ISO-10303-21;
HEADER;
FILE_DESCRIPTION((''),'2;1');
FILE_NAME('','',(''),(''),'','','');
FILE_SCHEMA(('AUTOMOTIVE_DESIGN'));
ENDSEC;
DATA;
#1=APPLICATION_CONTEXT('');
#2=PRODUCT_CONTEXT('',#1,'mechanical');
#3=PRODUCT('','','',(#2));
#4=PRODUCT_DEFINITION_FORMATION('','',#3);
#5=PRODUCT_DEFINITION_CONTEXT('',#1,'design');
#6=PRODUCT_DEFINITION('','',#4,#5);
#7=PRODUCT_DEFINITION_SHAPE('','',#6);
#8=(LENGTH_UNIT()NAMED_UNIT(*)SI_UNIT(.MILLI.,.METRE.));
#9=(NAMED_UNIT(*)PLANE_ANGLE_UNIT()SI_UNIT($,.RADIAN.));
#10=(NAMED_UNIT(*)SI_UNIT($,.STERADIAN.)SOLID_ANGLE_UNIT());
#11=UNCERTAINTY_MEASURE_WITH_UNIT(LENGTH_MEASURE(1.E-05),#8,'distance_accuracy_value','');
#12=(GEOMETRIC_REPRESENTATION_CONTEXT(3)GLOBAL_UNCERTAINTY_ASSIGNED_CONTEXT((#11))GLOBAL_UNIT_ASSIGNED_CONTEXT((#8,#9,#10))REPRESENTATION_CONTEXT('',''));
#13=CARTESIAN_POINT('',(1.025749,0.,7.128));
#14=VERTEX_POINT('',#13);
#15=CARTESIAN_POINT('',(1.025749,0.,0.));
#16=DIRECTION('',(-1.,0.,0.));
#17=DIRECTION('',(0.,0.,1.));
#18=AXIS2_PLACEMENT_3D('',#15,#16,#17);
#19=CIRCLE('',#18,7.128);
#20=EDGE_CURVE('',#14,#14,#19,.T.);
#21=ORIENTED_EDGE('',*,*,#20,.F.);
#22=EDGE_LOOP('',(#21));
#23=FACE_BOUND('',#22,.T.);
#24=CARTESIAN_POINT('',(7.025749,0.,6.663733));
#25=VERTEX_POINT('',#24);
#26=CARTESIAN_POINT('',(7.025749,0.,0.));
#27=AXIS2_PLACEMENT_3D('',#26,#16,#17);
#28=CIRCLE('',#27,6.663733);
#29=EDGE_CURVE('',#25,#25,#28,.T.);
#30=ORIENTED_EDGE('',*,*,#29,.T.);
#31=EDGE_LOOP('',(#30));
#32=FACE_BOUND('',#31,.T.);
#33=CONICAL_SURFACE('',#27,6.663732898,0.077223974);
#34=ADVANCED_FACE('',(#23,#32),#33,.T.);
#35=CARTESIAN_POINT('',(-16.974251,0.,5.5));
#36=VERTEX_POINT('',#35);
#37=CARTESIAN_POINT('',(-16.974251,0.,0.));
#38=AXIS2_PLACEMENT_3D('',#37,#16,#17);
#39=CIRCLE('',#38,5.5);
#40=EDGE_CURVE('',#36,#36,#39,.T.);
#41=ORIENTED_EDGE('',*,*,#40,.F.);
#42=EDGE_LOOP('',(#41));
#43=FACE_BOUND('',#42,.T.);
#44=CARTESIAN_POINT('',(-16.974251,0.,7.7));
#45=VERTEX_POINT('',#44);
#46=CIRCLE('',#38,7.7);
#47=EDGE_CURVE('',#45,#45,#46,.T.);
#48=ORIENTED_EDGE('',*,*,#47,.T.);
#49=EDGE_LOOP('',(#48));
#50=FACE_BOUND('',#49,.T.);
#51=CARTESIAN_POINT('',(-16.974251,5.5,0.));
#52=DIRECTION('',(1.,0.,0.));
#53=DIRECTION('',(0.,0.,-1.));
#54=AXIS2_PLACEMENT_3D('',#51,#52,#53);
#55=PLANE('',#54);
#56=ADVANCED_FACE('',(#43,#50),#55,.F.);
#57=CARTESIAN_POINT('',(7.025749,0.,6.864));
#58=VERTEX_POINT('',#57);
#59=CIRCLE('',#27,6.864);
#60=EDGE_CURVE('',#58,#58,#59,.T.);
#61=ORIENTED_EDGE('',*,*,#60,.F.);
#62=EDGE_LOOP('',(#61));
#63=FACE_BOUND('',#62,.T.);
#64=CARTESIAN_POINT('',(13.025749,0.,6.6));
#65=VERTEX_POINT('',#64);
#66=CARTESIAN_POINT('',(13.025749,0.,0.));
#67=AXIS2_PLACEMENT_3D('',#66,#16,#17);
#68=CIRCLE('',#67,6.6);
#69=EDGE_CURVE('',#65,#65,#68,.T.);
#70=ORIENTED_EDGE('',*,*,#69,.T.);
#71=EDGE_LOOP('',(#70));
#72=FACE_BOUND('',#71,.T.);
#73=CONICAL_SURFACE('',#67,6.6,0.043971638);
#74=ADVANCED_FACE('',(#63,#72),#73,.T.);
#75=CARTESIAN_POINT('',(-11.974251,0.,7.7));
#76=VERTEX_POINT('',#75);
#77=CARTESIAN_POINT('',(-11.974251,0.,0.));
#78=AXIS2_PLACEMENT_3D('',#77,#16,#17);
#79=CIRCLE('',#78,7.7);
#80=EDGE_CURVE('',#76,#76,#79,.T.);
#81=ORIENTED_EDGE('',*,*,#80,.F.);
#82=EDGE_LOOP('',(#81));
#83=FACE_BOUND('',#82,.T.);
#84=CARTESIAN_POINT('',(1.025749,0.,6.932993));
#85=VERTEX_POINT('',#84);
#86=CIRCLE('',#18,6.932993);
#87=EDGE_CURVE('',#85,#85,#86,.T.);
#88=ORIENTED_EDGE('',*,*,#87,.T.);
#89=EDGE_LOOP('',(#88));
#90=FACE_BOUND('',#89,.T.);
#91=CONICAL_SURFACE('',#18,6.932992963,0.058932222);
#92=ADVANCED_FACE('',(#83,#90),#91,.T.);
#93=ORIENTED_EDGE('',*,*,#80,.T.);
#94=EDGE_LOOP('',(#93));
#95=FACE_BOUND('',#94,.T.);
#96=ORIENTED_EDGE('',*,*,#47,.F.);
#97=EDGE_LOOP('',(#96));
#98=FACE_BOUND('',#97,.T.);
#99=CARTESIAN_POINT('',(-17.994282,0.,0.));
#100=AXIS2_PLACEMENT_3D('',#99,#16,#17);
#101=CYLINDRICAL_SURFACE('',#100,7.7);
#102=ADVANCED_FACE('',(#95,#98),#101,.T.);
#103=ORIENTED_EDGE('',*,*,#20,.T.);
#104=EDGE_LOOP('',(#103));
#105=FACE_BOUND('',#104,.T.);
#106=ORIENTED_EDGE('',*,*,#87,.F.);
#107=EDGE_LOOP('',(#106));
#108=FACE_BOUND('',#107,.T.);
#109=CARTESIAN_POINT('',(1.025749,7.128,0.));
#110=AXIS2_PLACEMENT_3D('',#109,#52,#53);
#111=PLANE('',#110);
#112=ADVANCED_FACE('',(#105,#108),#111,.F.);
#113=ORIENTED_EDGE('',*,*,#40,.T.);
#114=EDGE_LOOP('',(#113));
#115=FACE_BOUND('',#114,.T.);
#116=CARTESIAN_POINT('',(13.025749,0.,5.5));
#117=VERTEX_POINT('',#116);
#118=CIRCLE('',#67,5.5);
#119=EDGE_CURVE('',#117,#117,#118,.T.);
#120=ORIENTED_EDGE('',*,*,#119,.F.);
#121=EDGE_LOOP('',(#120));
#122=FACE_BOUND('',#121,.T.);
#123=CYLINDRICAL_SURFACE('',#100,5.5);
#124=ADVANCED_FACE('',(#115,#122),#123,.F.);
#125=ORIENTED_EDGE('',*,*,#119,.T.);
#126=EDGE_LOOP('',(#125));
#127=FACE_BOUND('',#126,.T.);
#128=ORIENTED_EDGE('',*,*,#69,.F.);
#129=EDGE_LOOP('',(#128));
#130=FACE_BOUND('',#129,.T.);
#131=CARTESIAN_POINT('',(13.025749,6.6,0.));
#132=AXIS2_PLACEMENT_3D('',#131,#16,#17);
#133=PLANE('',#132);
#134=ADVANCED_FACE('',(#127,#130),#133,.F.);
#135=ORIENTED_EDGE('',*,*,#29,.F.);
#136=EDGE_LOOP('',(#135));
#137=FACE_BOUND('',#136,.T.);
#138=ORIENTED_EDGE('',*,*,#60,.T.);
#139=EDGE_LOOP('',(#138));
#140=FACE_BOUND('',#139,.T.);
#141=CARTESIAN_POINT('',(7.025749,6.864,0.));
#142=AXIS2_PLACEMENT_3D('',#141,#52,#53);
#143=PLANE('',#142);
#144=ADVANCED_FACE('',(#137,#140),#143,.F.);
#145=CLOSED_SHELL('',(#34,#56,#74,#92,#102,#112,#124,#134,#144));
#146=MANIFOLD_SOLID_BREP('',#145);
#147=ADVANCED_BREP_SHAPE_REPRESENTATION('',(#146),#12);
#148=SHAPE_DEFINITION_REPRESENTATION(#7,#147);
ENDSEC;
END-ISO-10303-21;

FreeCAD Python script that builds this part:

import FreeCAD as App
import Part
import Sketcher
Q = App.Units.Quantity


def add_polygon(sketch, points):
    """Adds a closed chain of lines whose ends are joined by coincident constraints."""
    first, n = sketch.GeometryCount, len(points)
    for a, b in zip(points, points[1:] + points[:1]):
        sketch.addGeometry(Part.LineSegment(App.Vector(*a, 0), App.Vector(*b, 0)), False)
    for i in range(n):
        sketch.addConstraint(Sketcher.Constraint("Coincident", first + i, 2, first + (i + 1) % n, 1))

doc = App.newDocument("Part")
params = doc.addObject("Spreadsheet::Sheet", "Params")
for row, (alias, value) in enumerate([
    ("sketch1_width", "5 mm"),
    ("sketch1_width2", "30 mm"),
    ("sketch1_height", "2.2 mm"),
    ("sketch1_height2", "1.1 mm"),
    ("revolution_angle", "360 deg"),
], start=1):
    params.set(f"A{row}", alias)
    params.set(f"B{row}", "=" + value)
    params.setAlias(f"B{row}", alias)

body = doc.addObject("PartDesign::Body", "Body")

sketch1 = body.newObject("Sketcher::SketchObject", "Sketch")
sketch1.AttachmentSupport = (doc.getObject("XY_Plane"), [""])
sketch1.MapMode = "FlatFace"
add_polygon(sketch1, [(13.03, 6.6), (7.03, 6.86), (7.03, 6.66), (1.03, 7.13), (1.03, 6.93), (-11.97, 7.7), (-16.97, 7.7), (-16.97, 5.5), (13.03, 5.5)])
sketch1.addConstraint([
    Sketcher.Constraint("Vertical", 1),
    Sketcher.Constraint("Vertical", 3),
    Sketcher.Constraint("Horizontal", 5),
    Sketcher.Constraint("Vertical", 6),
    Sketcher.Constraint("Horizontal", 7),
    Sketcher.Constraint("Vertical", 8),
    Sketcher.Constraint("DistanceX", 5, 2, 5, 1, Q("5 mm")),
    Sketcher.Constraint("DistanceX", 7, 1, 7, 2, Q("30 mm")),
    Sketcher.Constraint("DistanceY", 6, 2, 6, 1, Q("2.2 mm")),
    Sketcher.Constraint("DistanceY", 8, 1, 8, 2, Q("1.1 mm")),
    Sketcher.Constraint("DistanceX", 2, 2, 0, 2, Q("6 mm")),
    Sketcher.Constraint("DistanceX", 4, 2, 2, 2, Q("13 mm")),
    Sketcher.Constraint("DistanceY", -1, 1, 4, 2, Q("7.7 mm")),
    Sketcher.Constraint("DistanceY", -1, 1, 0, 2, Q("6.864 mm")),
    Sketcher.Constraint("DistanceY", -1, 1, 2, 2, Q("7.128 mm")),
    Sketcher.Constraint("DistanceY", 1, 2, 1, 1, Q("0.200267 mm")),
    Sketcher.Constraint("DistanceY", 3, 2, 3, 1, Q("0.195007 mm")),
    Sketcher.Constraint("DistanceX", -1, 1, 0, 2, Q("7.025749 mm")),
])
sketch1.setExpression("Constraints[15]", "Params.sketch1_width")
sketch1.setExpression("Constraints[16]", "Params.sketch1_width2")
sketch1.setExpression("Constraints[17]", "Params.sketch1_height")
sketch1.setExpression("Constraints[18]", "Params.sketch1_height2")
revolution = body.newObject("PartDesign::Revolution", "Revolution")
revolution.Profile = sketch1
revolution.ReferenceAxis = (sketch1, ["H_Axis"])
revolution.setExpression("Angle", "Params.revolution_angle")

doc.recompute()
